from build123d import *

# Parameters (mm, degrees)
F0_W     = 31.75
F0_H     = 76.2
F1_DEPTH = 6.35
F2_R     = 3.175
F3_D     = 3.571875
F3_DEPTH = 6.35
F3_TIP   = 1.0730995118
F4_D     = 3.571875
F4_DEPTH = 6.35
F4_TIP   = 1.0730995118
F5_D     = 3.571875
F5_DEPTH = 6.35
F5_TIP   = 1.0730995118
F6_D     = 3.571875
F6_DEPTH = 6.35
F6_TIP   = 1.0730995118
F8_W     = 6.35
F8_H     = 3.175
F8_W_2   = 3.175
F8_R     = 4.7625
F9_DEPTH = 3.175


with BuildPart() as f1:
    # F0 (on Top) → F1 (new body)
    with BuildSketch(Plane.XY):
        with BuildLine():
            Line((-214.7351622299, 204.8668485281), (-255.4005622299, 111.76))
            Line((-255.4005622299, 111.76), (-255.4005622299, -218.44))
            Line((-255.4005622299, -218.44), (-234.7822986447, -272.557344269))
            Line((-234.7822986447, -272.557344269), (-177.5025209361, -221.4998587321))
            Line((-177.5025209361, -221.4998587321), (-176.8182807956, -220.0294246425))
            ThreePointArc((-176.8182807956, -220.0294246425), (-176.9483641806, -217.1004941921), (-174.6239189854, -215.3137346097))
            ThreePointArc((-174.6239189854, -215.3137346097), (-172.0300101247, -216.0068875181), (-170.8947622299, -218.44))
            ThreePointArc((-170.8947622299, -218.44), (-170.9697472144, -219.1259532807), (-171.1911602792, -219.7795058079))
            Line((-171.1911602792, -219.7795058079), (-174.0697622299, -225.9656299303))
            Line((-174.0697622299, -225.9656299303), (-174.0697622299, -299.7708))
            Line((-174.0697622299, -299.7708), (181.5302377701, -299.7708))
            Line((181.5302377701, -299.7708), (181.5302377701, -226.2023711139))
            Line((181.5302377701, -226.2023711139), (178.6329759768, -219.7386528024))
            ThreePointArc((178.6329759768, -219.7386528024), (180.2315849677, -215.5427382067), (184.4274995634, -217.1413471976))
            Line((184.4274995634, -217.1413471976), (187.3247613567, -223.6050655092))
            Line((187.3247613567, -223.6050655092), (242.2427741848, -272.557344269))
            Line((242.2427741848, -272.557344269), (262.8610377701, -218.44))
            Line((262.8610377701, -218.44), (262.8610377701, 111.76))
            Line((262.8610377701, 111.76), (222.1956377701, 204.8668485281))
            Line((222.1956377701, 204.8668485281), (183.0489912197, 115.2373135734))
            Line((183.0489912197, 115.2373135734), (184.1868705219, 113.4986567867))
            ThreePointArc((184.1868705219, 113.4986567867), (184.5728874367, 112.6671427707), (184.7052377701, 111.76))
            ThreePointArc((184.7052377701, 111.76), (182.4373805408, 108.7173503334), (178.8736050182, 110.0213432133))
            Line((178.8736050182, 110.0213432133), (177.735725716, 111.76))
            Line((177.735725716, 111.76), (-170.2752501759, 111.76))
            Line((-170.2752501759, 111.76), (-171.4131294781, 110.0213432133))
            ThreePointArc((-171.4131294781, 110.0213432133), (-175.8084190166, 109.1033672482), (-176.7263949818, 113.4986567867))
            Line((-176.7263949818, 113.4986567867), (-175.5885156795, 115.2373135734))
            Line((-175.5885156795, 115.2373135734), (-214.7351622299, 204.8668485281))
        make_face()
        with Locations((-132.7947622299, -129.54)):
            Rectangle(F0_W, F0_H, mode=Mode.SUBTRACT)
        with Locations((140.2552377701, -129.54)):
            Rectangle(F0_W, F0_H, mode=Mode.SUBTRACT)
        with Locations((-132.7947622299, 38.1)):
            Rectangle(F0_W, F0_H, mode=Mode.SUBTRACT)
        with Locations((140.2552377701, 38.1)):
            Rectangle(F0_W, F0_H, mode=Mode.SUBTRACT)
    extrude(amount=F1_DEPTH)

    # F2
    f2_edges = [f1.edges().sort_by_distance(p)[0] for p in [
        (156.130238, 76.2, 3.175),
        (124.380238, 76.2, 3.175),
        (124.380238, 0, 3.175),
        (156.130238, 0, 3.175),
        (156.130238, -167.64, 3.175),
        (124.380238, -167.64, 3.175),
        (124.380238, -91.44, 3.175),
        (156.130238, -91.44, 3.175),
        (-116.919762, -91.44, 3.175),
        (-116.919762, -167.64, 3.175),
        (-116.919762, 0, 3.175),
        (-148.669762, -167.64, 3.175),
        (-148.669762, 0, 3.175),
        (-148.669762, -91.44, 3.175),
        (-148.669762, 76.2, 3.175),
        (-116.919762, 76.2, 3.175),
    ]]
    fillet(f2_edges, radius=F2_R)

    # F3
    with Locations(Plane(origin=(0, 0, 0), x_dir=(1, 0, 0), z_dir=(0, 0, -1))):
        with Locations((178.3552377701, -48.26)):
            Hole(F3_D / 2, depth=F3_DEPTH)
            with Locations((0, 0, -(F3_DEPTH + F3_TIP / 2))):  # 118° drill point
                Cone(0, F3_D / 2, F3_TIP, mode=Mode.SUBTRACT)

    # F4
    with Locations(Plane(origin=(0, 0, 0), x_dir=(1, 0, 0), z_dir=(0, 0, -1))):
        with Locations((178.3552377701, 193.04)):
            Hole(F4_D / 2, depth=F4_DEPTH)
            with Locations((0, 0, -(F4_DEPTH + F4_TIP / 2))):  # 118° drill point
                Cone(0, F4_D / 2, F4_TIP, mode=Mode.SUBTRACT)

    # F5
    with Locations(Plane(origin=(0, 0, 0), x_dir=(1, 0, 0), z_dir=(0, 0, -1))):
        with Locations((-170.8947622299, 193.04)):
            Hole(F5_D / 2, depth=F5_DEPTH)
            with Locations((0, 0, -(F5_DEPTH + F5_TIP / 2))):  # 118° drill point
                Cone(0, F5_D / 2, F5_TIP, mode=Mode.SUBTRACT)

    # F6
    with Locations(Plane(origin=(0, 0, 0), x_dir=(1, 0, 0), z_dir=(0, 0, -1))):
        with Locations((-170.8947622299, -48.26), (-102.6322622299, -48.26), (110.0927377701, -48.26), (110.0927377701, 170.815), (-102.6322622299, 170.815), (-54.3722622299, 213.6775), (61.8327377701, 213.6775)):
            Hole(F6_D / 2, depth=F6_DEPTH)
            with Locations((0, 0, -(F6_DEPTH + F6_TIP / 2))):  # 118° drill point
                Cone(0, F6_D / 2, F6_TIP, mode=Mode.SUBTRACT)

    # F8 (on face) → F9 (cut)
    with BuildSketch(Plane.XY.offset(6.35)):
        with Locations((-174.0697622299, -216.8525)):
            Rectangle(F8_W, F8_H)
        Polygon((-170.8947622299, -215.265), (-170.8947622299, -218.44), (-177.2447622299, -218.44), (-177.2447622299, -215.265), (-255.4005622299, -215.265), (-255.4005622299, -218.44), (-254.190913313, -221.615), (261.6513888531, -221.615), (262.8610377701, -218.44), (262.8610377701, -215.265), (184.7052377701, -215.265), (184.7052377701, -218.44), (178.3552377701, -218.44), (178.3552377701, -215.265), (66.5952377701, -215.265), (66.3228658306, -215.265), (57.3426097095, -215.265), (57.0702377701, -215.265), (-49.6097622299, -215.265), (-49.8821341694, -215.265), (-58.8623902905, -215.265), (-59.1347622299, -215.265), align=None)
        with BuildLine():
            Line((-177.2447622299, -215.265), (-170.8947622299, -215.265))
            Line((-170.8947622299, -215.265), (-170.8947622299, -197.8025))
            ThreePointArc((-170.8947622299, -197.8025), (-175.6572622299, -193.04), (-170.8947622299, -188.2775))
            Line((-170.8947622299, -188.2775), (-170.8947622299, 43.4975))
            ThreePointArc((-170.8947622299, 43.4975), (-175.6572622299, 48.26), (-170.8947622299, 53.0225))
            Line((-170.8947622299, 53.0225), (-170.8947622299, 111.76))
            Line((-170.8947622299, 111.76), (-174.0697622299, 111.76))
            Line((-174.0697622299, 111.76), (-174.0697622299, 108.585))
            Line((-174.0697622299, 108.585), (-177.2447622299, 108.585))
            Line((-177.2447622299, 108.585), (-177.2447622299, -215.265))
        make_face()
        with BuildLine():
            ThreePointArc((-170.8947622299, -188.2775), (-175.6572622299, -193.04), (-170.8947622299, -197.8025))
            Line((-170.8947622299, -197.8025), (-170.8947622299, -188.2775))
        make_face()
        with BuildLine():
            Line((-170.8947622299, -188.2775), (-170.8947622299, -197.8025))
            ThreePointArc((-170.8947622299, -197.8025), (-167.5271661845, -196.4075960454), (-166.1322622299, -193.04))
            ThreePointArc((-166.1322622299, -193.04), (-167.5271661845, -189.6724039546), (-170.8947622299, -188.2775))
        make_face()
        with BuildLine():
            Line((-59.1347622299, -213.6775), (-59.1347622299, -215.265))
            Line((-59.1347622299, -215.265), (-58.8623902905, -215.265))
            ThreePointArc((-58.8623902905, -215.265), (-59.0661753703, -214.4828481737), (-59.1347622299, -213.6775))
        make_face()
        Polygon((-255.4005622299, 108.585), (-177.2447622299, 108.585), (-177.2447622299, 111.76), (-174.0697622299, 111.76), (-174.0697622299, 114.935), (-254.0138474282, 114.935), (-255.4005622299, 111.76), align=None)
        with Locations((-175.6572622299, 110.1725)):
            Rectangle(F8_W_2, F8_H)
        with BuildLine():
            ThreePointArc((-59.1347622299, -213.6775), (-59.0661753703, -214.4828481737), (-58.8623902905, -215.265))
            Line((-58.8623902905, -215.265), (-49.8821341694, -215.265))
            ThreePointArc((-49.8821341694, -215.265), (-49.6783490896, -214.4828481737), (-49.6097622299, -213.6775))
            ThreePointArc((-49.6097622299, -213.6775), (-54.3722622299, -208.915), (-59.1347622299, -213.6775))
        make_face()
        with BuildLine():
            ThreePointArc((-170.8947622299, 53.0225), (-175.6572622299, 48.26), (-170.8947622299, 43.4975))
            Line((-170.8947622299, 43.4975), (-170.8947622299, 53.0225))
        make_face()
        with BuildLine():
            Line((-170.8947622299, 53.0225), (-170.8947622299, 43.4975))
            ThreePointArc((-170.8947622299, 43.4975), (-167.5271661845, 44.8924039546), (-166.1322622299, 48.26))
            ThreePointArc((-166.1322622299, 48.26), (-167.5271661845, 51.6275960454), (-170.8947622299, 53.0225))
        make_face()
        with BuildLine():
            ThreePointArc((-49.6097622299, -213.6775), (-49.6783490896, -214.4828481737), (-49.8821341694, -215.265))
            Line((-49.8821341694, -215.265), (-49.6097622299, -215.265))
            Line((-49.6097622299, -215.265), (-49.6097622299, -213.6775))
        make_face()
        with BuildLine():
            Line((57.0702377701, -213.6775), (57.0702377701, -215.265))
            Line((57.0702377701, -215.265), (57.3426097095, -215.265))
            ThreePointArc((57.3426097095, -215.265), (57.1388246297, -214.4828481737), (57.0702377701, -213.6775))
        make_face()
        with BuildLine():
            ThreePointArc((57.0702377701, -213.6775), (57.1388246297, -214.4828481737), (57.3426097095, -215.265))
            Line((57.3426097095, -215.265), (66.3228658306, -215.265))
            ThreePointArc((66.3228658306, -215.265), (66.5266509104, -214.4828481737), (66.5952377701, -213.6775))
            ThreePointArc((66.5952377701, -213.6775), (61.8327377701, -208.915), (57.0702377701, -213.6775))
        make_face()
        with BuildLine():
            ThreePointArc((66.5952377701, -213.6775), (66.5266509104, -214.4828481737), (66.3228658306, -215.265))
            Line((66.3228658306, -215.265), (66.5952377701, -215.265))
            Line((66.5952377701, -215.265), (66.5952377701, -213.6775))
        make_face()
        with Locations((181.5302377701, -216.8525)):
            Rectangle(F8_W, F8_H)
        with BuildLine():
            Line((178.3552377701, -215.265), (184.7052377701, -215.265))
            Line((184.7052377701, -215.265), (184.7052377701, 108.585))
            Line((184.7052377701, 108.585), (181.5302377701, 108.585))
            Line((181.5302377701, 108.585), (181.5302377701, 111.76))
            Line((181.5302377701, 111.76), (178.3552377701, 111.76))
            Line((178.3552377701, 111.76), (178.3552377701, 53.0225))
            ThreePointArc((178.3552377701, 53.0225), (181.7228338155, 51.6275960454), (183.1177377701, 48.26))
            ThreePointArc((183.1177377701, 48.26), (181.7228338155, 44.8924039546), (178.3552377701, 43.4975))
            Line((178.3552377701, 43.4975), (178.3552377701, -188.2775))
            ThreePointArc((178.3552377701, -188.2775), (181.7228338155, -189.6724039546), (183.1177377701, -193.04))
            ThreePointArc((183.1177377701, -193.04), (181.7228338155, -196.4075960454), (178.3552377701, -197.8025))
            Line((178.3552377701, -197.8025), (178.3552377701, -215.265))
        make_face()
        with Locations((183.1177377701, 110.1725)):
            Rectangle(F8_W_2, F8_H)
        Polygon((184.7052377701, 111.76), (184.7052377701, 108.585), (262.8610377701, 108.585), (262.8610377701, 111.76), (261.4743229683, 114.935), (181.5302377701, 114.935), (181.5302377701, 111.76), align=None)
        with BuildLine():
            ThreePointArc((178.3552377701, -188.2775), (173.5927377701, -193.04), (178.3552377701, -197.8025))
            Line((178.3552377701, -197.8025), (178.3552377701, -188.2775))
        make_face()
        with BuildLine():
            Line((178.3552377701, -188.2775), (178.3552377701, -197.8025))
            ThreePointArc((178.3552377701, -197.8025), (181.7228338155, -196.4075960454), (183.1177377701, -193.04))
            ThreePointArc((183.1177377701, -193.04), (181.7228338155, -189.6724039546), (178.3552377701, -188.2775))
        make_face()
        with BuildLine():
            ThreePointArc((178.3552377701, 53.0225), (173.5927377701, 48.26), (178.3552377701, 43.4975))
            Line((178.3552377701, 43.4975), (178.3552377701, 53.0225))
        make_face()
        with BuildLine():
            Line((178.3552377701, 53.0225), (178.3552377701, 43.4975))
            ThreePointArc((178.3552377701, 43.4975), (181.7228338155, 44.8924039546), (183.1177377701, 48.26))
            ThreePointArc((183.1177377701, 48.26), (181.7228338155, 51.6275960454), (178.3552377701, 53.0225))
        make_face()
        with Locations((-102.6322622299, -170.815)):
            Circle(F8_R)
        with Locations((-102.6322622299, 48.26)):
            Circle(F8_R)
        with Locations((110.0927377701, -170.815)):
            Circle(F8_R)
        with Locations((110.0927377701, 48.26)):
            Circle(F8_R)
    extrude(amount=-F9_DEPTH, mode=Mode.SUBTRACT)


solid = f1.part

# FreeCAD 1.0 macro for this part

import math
import FreeCAD as App
import Part
import Sketcher

V = App.Vector
Q = App.Units.Quantity


def edges_at(feature, points):
    """Names of the edges that pass closest to the given points."""
    edges = feature.Shape.Edges
    near = lambda p: min(range(len(edges)), key=lambda i: edges[i].distToShape(Part.Vertex(*p))[0])
    return sorted({f"Edge{near(p) + 1}" for p in points})

doc = App.newDocument("Part")
params = doc.addObject("Spreadsheet::Sheet", "Params")
for row, (alias, value) in enumerate([
    ("sketch1_width", "14 in"),
    ("sketch1_height", "13 in"),
    ("sketch1_height2", "3 in"),
    ("sketch1_length", "4 in"),
    ("sketch1_radius", "0.125 in"),
    ("pad1_length", "0.25 in"),
    ("fillet_radius", "0.125 in"),
    ("sketch2_diameter", "0.140625 in"),
    ("hole_diameter", "0.140625 in"),
    ("hole_depth", "0.25 in"),
    ("sketch3_diameter", "0.140625 in"),
    ("hole2_diameter", "0.140625 in"),
    ("hole2_depth", "0.25 in"),
    ("sketch4_diameter", "0.140625 in"),
    ("hole3_diameter", "0.140625 in"),
    ("hole3_depth", "0.25 in"),
    ("sketch5_diameter", "0.140625 in"),
    ("hole4_diameter", "0.140625 in"),
    ("hole4_depth", "0.25 in"),
    ("sketch6_diameter", "0.375 in"),
    ("sketch6_width", "4.4 in"),
    ("sketch6_width2", "4.2 in"),
    ("sketch6_height", "12.75 in"),
    ("sketch6_width3", "3.077 in"),
    ("pocket1_length", "0.125 in"),
], start=1):
    params.set(f"A{row}", alias)
    params.set(f"B{row}", "=" + value)
    params.setAlias(f"B{row}", alias)

body = doc.addObject("PartDesign::Body", "Body")

sketch1 = doc.addObject("Sketcher::SketchObject", "Sketch")
body.addObject(sketch1)
sketch1.AttachmentSupport = (doc.XY_Plane, [""])
sketch1.MapMode = "FlatFace"
sketch1.addGeometry(Part.LineSegment(V(-214.735162, 204.866849, 0), V(-255.400562, 111.76, 0)), False)
sketch1.addGeometry(Part.LineSegment(V(-255.400562, 111.76, 0), V(-255.400562, -218.44, 0)), False)
sketch1.addGeometry(Part.LineSegment(V(-255.400562, -218.44, 0), V(-234.782299, -272.557344, 0)), False)
sketch1.addGeometry(Part.LineSegment(V(-234.782299, -272.557344, 0), V(-177.502521, -221.499859, 0)), False)
sketch1.addGeometry(Part.LineSegment(V(-177.502521, -221.499859, 0), V(-176.818281, -220.029425, 0)), False)
sketch1.addGeometry(Part.ArcOfCircle(Part.Circle(V(-174.069762, -218.44, 0), V(0, 0, 1), 3.175), math.radians(100.051748), math.radians(210.040113)), False)
sketch1.addGeometry(Part.ArcOfCircle(Part.Circle(V(-174.069762, -218.44, 0), V(0, 0, 1), 3.175), math.radians(0), math.radians(100.051748)), False)
sketch1.addGeometry(Part.ArcOfCircle(Part.Circle(V(-174.069762, -218.44, 0), V(0, 0, 1), 3.175), math.radians(-24.954069), math.radians(0)), False)
sketch1.addGeometry(Part.LineSegment(V(-171.19116, -219.779506, 0), V(-174.069762, -225.96563, 0)), False)
sketch1.addGeometry(Part.LineSegment(V(-174.069762, -225.96563, 0), V(-174.069762, -299.7708, 0)), False)
sketch1.addGeometry(Part.LineSegment(V(-174.069762, -299.7708, 0), V(181.530238, -299.7708, 0)), False)
sketch1.addGeometry(Part.LineSegment(V(181.530238, -299.7708, 0), V(181.530238, -226.202371, 0)), False)
sketch1.addGeometry(Part.LineSegment(V(181.530238, -226.202371, 0), V(178.632976, -219.738653, 0)), False)
sketch1.addGeometry(Part.ArcOfCircle(Part.Circle(V(181.530238, -218.44, 0), V(0, 0, 1), 3.175), math.radians(24.14357), math.radians(204.14357)), False)
sketch1.addGeometry(Part.LineSegment(V(184.4275, -217.141347, 0), V(187.324761, -223.605066, 0)), False)
sketch1.addGeometry(Part.LineSegment(V(187.324761, -223.605066, 0), V(242.242774, -272.557344, 0)), False)
sketch1.addGeometry(Part.LineSegment(V(242.242774, -272.557344, 0), V(262.861038, -218.44, 0)), False)
sketch1.addGeometry(Part.LineSegment(V(262.861038, -218.44, 0), V(262.861038, 111.76, 0)), False)
sketch1.addGeometry(Part.LineSegment(V(262.861038, 111.76, 0), V(222.195638, 204.866849, 0)), False)
sketch1.addGeometry(Part.LineSegment(V(222.195638, 204.866849, 0), V(183.048991, 115.237314, 0)), False)
sketch1.addGeometry(Part.LineSegment(V(183.048991, 115.237314, 0), V(184.186871, 113.498657, 0)), False)
sketch1.addGeometry(Part.ArcOfCircle(Part.Circle(V(181.530238, 111.76, 0), V(0, 0, 1), 3.175), math.radians(0), math.radians(33.203096)), False)
sketch1.addGeometry(Part.ArcOfCircle(Part.Circle(V(181.530238, 111.76, 0), V(0, 0, 1), 3.175), math.radians(-146.796904), math.radians(0)), False)
sketch1.addGeometry(Part.LineSegment(V(178.873605, 110.021343, 0), V(177.735726, 111.76, 0)), False)
sketch1.addGeometry(Part.LineSegment(V(177.735726, 111.76, 0), V(-170.27525, 111.76, 0)), False)
sketch1.addGeometry(Part.LineSegment(V(-170.27525, 111.76, 0), V(-171.413129, 110.021343, 0)), False)
sketch1.addGeometry(Part.ArcOfCircle(Part.Circle(V(-174.069762, 111.76, 0), V(0, 0, 1), 3.175), math.radians(146.796904), math.radians(326.796904)), False)
sketch1.addGeometry(Part.LineSegment(V(-176.726395, 113.498657, 0), V(-175.588516, 115.237314, 0)), False)
sketch1.addGeometry(Part.LineSegment(V(-175.588516, 115.237314, 0), V(-214.735162, 204.866849, 0)), False)
sketch1.addGeometry(Part.LineSegment(V(-116.919762, -167.64, 0), V(-148.669762, -167.64, 0)), False)
sketch1.addGeometry(Part.LineSegment(V(-148.669762, -167.64, 0), V(-148.669762, -91.44, 0)), False)
sketch1.addGeometry(Part.LineSegment(V(-148.669762, -91.44, 0), V(-116.919762, -91.44, 0)), False)
sketch1.addGeometry(Part.LineSegment(V(-116.919762, -91.44, 0), V(-116.919762, -167.64, 0)), False)
sketch1.addGeometry(Part.LineSegment(V(156.130238, -167.64, 0), V(124.380238, -167.64, 0)), False)
sketch1.addGeometry(Part.LineSegment(V(124.380238, -167.64, 0), V(124.380238, -91.44, 0)), False)
sketch1.addGeometry(Part.LineSegment(V(124.380238, -91.44, 0), V(156.130238, -91.44, 0)), False)
sketch1.addGeometry(Part.LineSegment(V(156.130238, -91.44, 0), V(156.130238, -167.64, 0)), False)
sketch1.addGeometry(Part.LineSegment(V(-116.919762, 0, 0), V(-148.669762, 0, 0)), False)
sketch1.addGeometry(Part.LineSegment(V(-148.669762, 0, 0), V(-148.669762, 76.2, 0)), False)
sketch1.addGeometry(Part.LineSegment(V(-148.669762, 76.2, 0), V(-116.919762, 76.2, 0)), False)
sketch1.addGeometry(Part.LineSegment(V(-116.919762, 76.2, 0), V(-116.919762, 0, 0)), False)
sketch1.addGeometry(Part.LineSegment(V(156.130238, 0, 0), V(124.380238, 0, 0)), False)
sketch1.addGeometry(Part.LineSegment(V(124.380238, 0, 0), V(124.380238, 76.2, 0)), False)
sketch1.addGeometry(Part.LineSegment(V(124.380238, 76.2, 0), V(156.130238, 76.2, 0)), False)
sketch1.addGeometry(Part.LineSegment(V(156.130238, 76.2, 0), V(156.130238, 0, 0)), False)
sketch1.addConstraint(Sketcher.Constraint("Coincident", 0, 2, 1, 1))
sketch1.addConstraint(Sketcher.Constraint("Coincident", 1, 2, 2, 1))
sketch1.addConstraint(Sketcher.Constraint("Coincident", 2, 2, 3, 1))
sketch1.addConstraint(Sketcher.Constraint("Coincident", 3, 2, 4, 1))
sketch1.addConstraint(Sketcher.Constraint("Coincident", 4, 2, 5, 2))
sketch1.addConstraint(Sketcher.Constraint("Tangent", 5, 1, 6, 2))
sketch1.addConstraint(Sketcher.Constraint("Tangent", 6, 1, 7, 2))
sketch1.addConstraint(Sketcher.Constraint("Tangent", 7, 1, 8, 1))
sketch1.addConstraint(Sketcher.Constraint("Coincident", 8, 2, 9, 1))
sketch1.addConstraint(Sketcher.Constraint("Coincident", 9, 2, 10, 1))
sketch1.addConstraint(Sketcher.Constraint("Coincident", 10, 2, 11, 1))
sketch1.addConstraint(Sketcher.Constraint("Coincident", 11, 2, 12, 1))
sketch1.addConstraint(Sketcher.Constraint("Tangent", 12, 2, 13, 2))
sketch1.addConstraint(Sketcher.Constraint("Tangent", 13, 1, 14, 1))
sketch1.addConstraint(Sketcher.Constraint("Coincident", 14, 2, 15, 1))
sketch1.addConstraint(Sketcher.Constraint("Coincident", 15, 2, 16, 1))
sketch1.addConstraint(Sketcher.Constraint("Coincident", 16, 2, 17, 1))
sketch1.addConstraint(Sketcher.Constraint("Coincident", 17, 2, 18, 1))
sketch1.addConstraint(Sketcher.Constraint("Coincident", 18, 2, 19, 1))
sketch1.addConstraint(Sketcher.Constraint("Coincident", 19, 2, 20, 1))
sketch1.addConstraint(Sketcher.Constraint("Tangent", 20, 2, 21, 2))
sketch1.addConstraint(Sketcher.Constraint("Tangent", 21, 1, 22, 2))
sketch1.addConstraint(Sketcher.Constraint("Tangent", 22, 1, 23, 1))
sketch1.addConstraint(Sketcher.Constraint("Coincident", 23, 2, 24, 1))
sketch1.addConstraint(Sketcher.Constraint("Coincident", 24, 2, 25, 1))
sketch1.addConstraint(Sketcher.Constraint("Tangent", 25, 2, 26, 2))
sketch1.addConstraint(Sketcher.Constraint("Tangent", 26, 1, 27, 1))
sketch1.addConstraint(Sketcher.Constraint("Coincident", 27, 2, 28, 1))
sketch1.addConstraint(Sketcher.Constraint("Coincident", 28, 2, 0, 1))
sketch1.addConstraint(Sketcher.Constraint("Coincident", 29, 2, 30, 1))
sketch1.addConstraint(Sketcher.Constraint("Coincident", 30, 2, 31, 1))
sketch1.addConstraint(Sketcher.Constraint("Coincident", 31, 2, 32, 1))
sketch1.addConstraint(Sketcher.Constraint("Coincident", 32, 2, 29, 1))
sketch1.addConstraint(Sketcher.Constraint("Coincident", 33, 2, 34, 1))
sketch1.addConstraint(Sketcher.Constraint("Coincident", 34, 2, 35, 1))
sketch1.addConstraint(Sketcher.Constraint("Coincident", 35, 2, 36, 1))
sketch1.addConstraint(Sketcher.Constraint("Coincident", 36, 2, 33, 1))
sketch1.addConstraint(Sketcher.Constraint("Coincident", 37, 2, 38, 1))
sketch1.addConstraint(Sketcher.Constraint("Coincident", 38, 2, 39, 1))
sketch1.addConstraint(Sketcher.Constraint("Coincident", 39, 2, 40, 1))
sketch1.addConstraint(Sketcher.Constraint("Coincident", 40, 2, 37, 1))
sketch1.addConstraint(Sketcher.Constraint("Coincident", 41, 2, 42, 1))
sketch1.addConstraint(Sketcher.Constraint("Coincident", 42, 2, 43, 1))
sketch1.addConstraint(Sketcher.Constraint("Coincident", 43, 2, 44, 1))
sketch1.addConstraint(Sketcher.Constraint("Coincident", 44, 2, 41, 1))
sketch1.addConstraint(Sketcher.Constraint("Vertical", 1))
sketch1.addConstraint(Sketcher.Constraint("Vertical", 9))
sketch1.addConstraint(Sketcher.Constraint("Horizontal", 10))
sketch1.addConstraint(Sketcher.Constraint("Vertical", 11))
sketch1.addConstraint(Sketcher.Constraint("Vertical", 17))
sketch1.addConstraint(Sketcher.Constraint("Horizontal", 24))
sketch1.addConstraint(Sketcher.Constraint("Horizontal", 29))
sketch1.addConstraint(Sketcher.Constraint("Vertical", 30))
sketch1.addConstraint(Sketcher.Constraint("Horizontal", 31))
sketch1.addConstraint(Sketcher.Constraint("Vertical", 32))
sketch1.addConstraint(Sketcher.Constraint("Horizontal", 33))
sketch1.addConstraint(Sketcher.Constraint("Vertical", 34))
sketch1.addConstraint(Sketcher.Constraint("Horizontal", 35))
sketch1.addConstraint(Sketcher.Constraint("Vertical", 36))
sketch1.addConstraint(Sketcher.Constraint("Horizontal", 37))
sketch1.addConstraint(Sketcher.Constraint("Vertical", 38))
sketch1.addConstraint(Sketcher.Constraint("Horizontal", 39))
sketch1.addConstraint(Sketcher.Constraint("Vertical", 40))
sketch1.addConstraint(Sketcher.Constraint("Horizontal", 41))
sketch1.addConstraint(Sketcher.Constraint("Vertical", 42))
sketch1.addConstraint(Sketcher.Constraint("Horizontal", 43))
sketch1.addConstraint(Sketcher.Constraint("Vertical", 44))
sketch1.addConstraint(Sketcher.Constraint("Coincident", 7, 3, 5, 3))
sketch1.addConstraint(Sketcher.Constraint("Equal", 7, 13))
sketch1.addConstraint(Sketcher.Constraint("Equal", 13, 21))
sketch1.addConstraint(Sketcher.Constraint("Equal", 21, 22))
sketch1.addConstraint(Sketcher.Constraint("Equal", 22, 26))
sketch1.addConstraint(Sketcher.Constraint("PointOnObject", 37, 2, -1))
sketch1.addConstraint(Sketcher.Constraint("PointOnObject", 41, 2, -1))
sketch1.addConstraint(Sketcher.Constraint("Parallel", 4, 8))
sketch1.addConstraint(Sketcher.Constraint("Parallel", 12, 14))
sketch1.addConstraint(Sketcher.Constraint("Parallel", 0, 19))
sketch1.addConstraint(Sketcher.Constraint("Parallel", 20, 23))
sketch1.addConstraint(Sketcher.Constraint("Parallel", 25, 27))
sketch1.addConstraint(Sketcher.Constraint("Parallel", 18, 28))
sketch1.addConstraint(Sketcher.Constraint("Horizontal", 7, 3, 13, 3))
sketch1.addConstraint(Sketcher.Constraint("Horizontal", 22, 3, 26, 3))
sketch1.addConstraint(Sketcher.Constraint("Horizontal", 26, 3, 0, 2))
sketch1.addConstraint(Sketcher.Constraint("Horizontal", 13, 3, 1, 2))
sketch1.addConstraint(Sketcher.Constraint("Horizontal", 1, 2, 6, 1))
sketch1.addConstraint(Sketcher.Constraint("Horizontal", 2, 2, 15, 2))
sketch1.addConstraint(Sketcher.Constraint("Horizontal", 6, 1, 16, 2))
sketch1.addConstraint(Sketcher.Constraint("Horizontal", 0, 2, 17, 2))
sketch1.addConstraint(Sketcher.Constraint("Horizontal", 17, 2, 21, 1))
sketch1.addConstraint(Sketcher.Constraint("Horizontal", 21, 1, 23, 2))
sketch1.addConstraint(Sketcher.Constraint("Horizontal", 22, 1, 25, 2))
sketch1.addConstraint(Sketcher.Constraint("Horizontal", 19, 2, 27, 2))
sketch1.addConstraint(Sketcher.Constraint("Horizontal", 18, 2, 28, 2))
sketch1.addConstraint(Sketcher.Constraint("Horizontal", 32, 2, 33, 2))
sketch1.addConstraint(Sketcher.Constraint("Horizontal", 31, 2, 34, 2))
sketch1.addConstraint(Sketcher.Constraint("Horizontal", 39, 2, 42, 2))
sketch1.addConstraint(Sketcher.Constraint("Vertical", 13, 3, 21, 3))
sketch1.addConstraint(Sketcher.Constraint("Vertical", 7, 3, 26, 3))
sketch1.addConstraint(Sketcher.Constraint("Vertical", 26, 3, 8, 2))
sketch1.addConstraint(Sketcher.Constraint("Vertical", 22, 3, 10, 2))
sketch1.addConstraint(Sketcher.Constraint("Vertical", 30, 2, 37, 2))
sketch1.addConstraint(Sketcher.Constraint("Vertical", 32, 2, 39, 2))
sketch1.addConstraint(Sketcher.Constraint("Vertical", 34, 2, 41, 2))
sketch1.addConstraint(Sketcher.Constraint("Vertical", 36, 2, 43, 2))
sketch1.addConstraint(Sketcher.Constraint("Equal", 31, 33))
sketch1.addConstraint(Sketcher.Constraint("Equal", 36, 38))
sketch1.addConstraint(Sketcher.Constraint("Equal", 12, 14))
sketch1.addConstraint(Sketcher.Constraint("Equal", 2, 16))
sketch1.addConstraint(Sketcher.Constraint("Equal", 0, 18))
sketch1.addConstraint(Sketcher.Constraint("Equal", 20, 23))
sketch1.addConstraint(Sketcher.Constraint("DistanceX", 10, 1, 10, 2, Q("14 in")))
sketch1.addConstraint(Sketcher.Constraint("DistanceY", 1, 2, 1, 1, Q("13 in")))
sketch1.addConstraint(Sketcher.Constraint("DistanceY", 30, 1, 30, 2, Q("3 in")))
sketch1.addConstraint(Sketcher.Constraint("Distance", 0, Q("4 in")))
sketch1.addConstraint(Sketcher.Constraint("Radius", 5, Q("0.125 in")))
sketch1.addConstraint(Sketcher.Constraint("DistanceY", 6, 1, 29, 2, Q("2 in")))
sketch1.addConstraint(Sketcher.Constraint("DistanceX", 5, 3, 29, 2, Q("1 in")))
sketch1.addConstraint(Sketcher.Constraint("DistanceX", 35, 2, 13, 3, Q("1 in")))
sketch1.addConstraint(Sketcher.Constraint("DistanceX", 29, 2, 29, 1, Q("1.25 in")))
sketch1.addConstraint(Sketcher.Constraint("DistanceY", 5, 3, -1, 1, Q("8.6 in")))
sketch1.addConstraint(Sketcher.Constraint("Distance", 2, Q("2.28 in")))
sketch1.addConstraint(Sketcher.Constraint("DistanceY", 9, 2, -1, 1, Q("11.802 in")))
sketch1.addConstraint(Sketcher.Constraint("DistanceX", 0, 2, 26, 3, Q("3.202 in")))
sketch1.addConstraint(Sketcher.Constraint("DistanceX", 21, 3, 18, 2, Q("1.601 in")))
sketch1.addConstraint(Sketcher.Constraint("DistanceY", 9, 2, 9, 1, Q("73.80517 mm")))
sketch1.addConstraint(Sketcher.Constraint("DistanceY", 11, 1, 11, 2, Q("73.568429 mm")))
sketch1.addConstraint(Sketcher.Constraint("DistanceX", 2, 2, -1, 1, Q("234.782299 mm")))
sketch1.addConstraint(Sketcher.Constraint("DistanceX", -1, 1, 13, 1, Q("184.4275 mm")))
sketch1.addConstraint(Sketcher.Constraint("DistanceX", 3, 2, 5, 1, Q("2.878602 mm")))
sketch1.addConstraint(Sketcher.Constraint("Distance", 3, Q("76.73226 mm")))
sketch1.addConstraint(Sketcher.Constraint("Distance", 4, Q("1.621839 mm")))
sketch1.setExpression("Constraints[110]", "Params.sketch1_width")
sketch1.setExpression("Constraints[111]", "Params.sketch1_height")
sketch1.setExpression("Constraints[112]", "Params.sketch1_height2")
sketch1.setExpression("Constraints[113]", "Params.sketch1_length")
sketch1.setExpression("Constraints[114]", "Params.sketch1_radius")
pad1 = doc.addObject("PartDesign::Pad", "Pad")
body.addObject(pad1)
pad1.Profile = sketch1
pad1.setExpression("Length", "Params.pad1_length")
doc.recompute()

fillet = doc.addObject("PartDesign::Fillet", "Fillet")
body.addObject(fillet)
fillet.Base = (pad1, edges_at(pad1, [
    (156.13, 76.2, 3.175),
    (124.38, 76.2, 3.175),
    (124.38, 0, 3.175),
    (156.13, 0, 3.175),
    (156.13, -167.64, 3.175),
    (124.38, -167.64, 3.175),
    (124.38, -91.44, 3.175),
    (156.13, -91.44, 3.175),
    (-116.92, -91.44, 3.175),
    (-116.92, -167.64, 3.175),
    (-116.92, 0, 3.175),
    (-148.67, -167.64, 3.175),
    (-148.67, 0, 3.175),
    (-148.67, -91.44, 3.175),
    (-148.67, 76.2, 3.175),
    (-116.92, 76.2, 3.175),
]))
fillet.setExpression("Radius", "Params.fillet_radius")

sketch2 = doc.addObject("Sketcher::SketchObject", "Sketch001")
body.addObject(sketch2)
sketch2.AttachmentSupport = (doc.XY_Plane, [""])
sketch2.MapMode = "FlatFace"
sketch2.addGeometry(Part.Circle(V(178.355238, 48.26, 0), V(0, 0, 1), 1.785937), False)
sketch2.addConstraint(Sketcher.Constraint("Diameter", 0, Q("0.140625 in")))
sketch2.addConstraint(Sketcher.Constraint("DistanceY", -1, 1, 0, 3, Q("1.9 in")))
sketch2.addConstraint(Sketcher.Constraint("DistanceX", -1, 1, 0, 3, Q("178.355238 mm")))
sketch2.setExpression("Constraints[0]", "Params.sketch2_diameter")
doc.recompute()
hole = doc.addObject("PartDesign::Hole", "Hole")
body.addObject(hole)
hole.Profile = sketch2
hole.ThreadType = "None"
hole.setExpression("Diameter", "Params.hole_diameter")
hole.DepthType = "Dimension"
hole.setExpression("Depth", "Params.hole_depth")
hole.DrillPoint = "Angled"
hole.DrillPointAngle = 118
hole.Reversed = True

sketch3 = doc.addObject("Sketcher::SketchObject", "Sketch002")
body.addObject(sketch3)
sketch3.AttachmentSupport = (doc.XY_Plane, [""])
sketch3.MapMode = "FlatFace"
sketch3.addGeometry(Part.Circle(V(178.355238, -193.04, 0), V(0, 0, 1), 1.785937), False)
sketch3.addConstraint(Sketcher.Constraint("Diameter", 0, Q("0.140625 in")))
sketch3.addConstraint(Sketcher.Constraint("DistanceY", 0, 3, -1, 1, Q("7.6 in")))
sketch3.addConstraint(Sketcher.Constraint("DistanceX", -1, 1, 0, 3, Q("178.355238 mm")))
sketch3.setExpression("Constraints[0]", "Params.sketch3_diameter")
doc.recompute()
hole2 = doc.addObject("PartDesign::Hole", "Hole001")
body.addObject(hole2)
hole2.Profile = sketch3
hole2.ThreadType = "None"
hole2.setExpression("Diameter", "Params.hole2_diameter")
hole2.DepthType = "Dimension"
hole2.setExpression("Depth", "Params.hole2_depth")
hole2.DrillPoint = "Angled"
hole2.DrillPointAngle = 118
hole2.Reversed = True

sketch4 = doc.addObject("Sketcher::SketchObject", "Sketch003")
body.addObject(sketch4)
sketch4.AttachmentSupport = (doc.XY_Plane, [""])
sketch4.MapMode = "FlatFace"
sketch4.addGeometry(Part.Circle(V(-170.894762, -193.04, 0), V(0, 0, 1), 1.785937), False)
sketch4.addConstraint(Sketcher.Constraint("Diameter", 0, Q("0.140625 in")))
sketch4.addConstraint(Sketcher.Constraint("DistanceY", 0, 3, -1, 1, Q("7.6 in")))
sketch4.addConstraint(Sketcher.Constraint("DistanceX", 0, 3, -1, 1, Q("170.894762 mm")))
sketch4.setExpression("Constraints[0]", "Params.sketch4_diameter")
doc.recompute()
hole3 = doc.addObject("PartDesign::Hole", "Hole002")
body.addObject(hole3)
hole3.Profile = sketch4
hole3.ThreadType = "None"
hole3.setExpression("Diameter", "Params.hole3_diameter")
hole3.DepthType = "Dimension"
hole3.setExpression("Depth", "Params.hole3_depth")
hole3.DrillPoint = "Angled"
hole3.DrillPointAngle = 118
hole3.Reversed = True

sketch5 = doc.addObject("Sketcher::SketchObject", "Sketch004")
body.addObject(sketch5)
sketch5.AttachmentSupport = (doc.XY_Plane, [""])
sketch5.MapMode = "FlatFace"
sketch5.addGeometry(Part.Circle(V(-170.894762, 48.26, 0), V(0, 0, 1), 1.785937), False)
sketch5.addGeometry(Part.Circle(V(-102.632262, 48.26, 0), V(0, 0, 1), 1.785937), False)
sketch5.addGeometry(Part.Circle(V(110.092738, 48.26, 0), V(0, 0, 1), 1.785937), False)
sketch5.addGeometry(Part.Circle(V(110.092738, -170.815, 0), V(0, 0, 1), 1.785937), False)
sketch5.addGeometry(Part.Circle(V(-102.632262, -170.815, 0), V(0, 0, 1), 1.785937), False)
sketch5.addGeometry(Part.Circle(V(-54.372262, -213.6775, 0), V(0, 0, 1), 1.785937), False)
sketch5.addGeometry(Part.Circle(V(61.832738, -213.6775, 0), V(0, 0, 1), 1.785937), False)
sketch5.addConstraint(Sketcher.Constraint("Equal", 0, 1))
sketch5.addConstraint(Sketcher.Constraint("Equal", 1, 2))
sketch5.addConstraint(Sketcher.Constraint("Equal", 2, 3))
sketch5.addConstraint(Sketcher.Constraint("Equal", 3, 4))
sketch5.addConstraint(Sketcher.Constraint("Equal", 4, 5))
sketch5.addConstraint(Sketcher.Constraint("Equal", 5, 6))
sketch5.addConstraint(Sketcher.Constraint("Horizontal", 0, 3, 1, 3))
sketch5.addConstraint(Sketcher.Constraint("Horizontal", 1, 3, 2, 3))
sketch5.addConstraint(Sketcher.Constraint("Horizontal", 3, 3, 4, 3))
sketch5.addConstraint(Sketcher.Constraint("Horizontal", 5, 3, 6, 3))
sketch5.addConstraint(Sketcher.Constraint("Vertical", 2, 3, 3, 3))
sketch5.addConstraint(Sketcher.Constraint("Vertical", 1, 3, 4, 3))
sketch5.addConstraint(Sketcher.Constraint("Diameter", 0, Q("0.140625 in")))
sketch5.addConstraint(Sketcher.Constraint("DistanceY", -1, 1, 0, 3, Q("1.9 in")))
sketch5.addConstraint(Sketcher.Constraint("DistanceX", 4, 3, 5, 3, Q("1.9 in")))
sketch5.addConstraint(Sketcher.Constraint("DistanceX", 6, 3, 3, 3, Q("1.9 in")))
sketch5.addConstraint(Sketcher.Constraint("DistanceY", 3, 3, -1, 1, Q("6.725 in")))
sketch5.addConstraint(Sketcher.Constraint("DistanceX", 0, 3, 1, 3, Q("2.6875 in")))
sketch5.addConstraint(Sketcher.Constraint("DistanceX", 1, 3, 2, 3, Q("8.375 in")))
sketch5.addConstraint(Sketcher.Constraint("DistanceY", 5, 3, 4, 3, Q("1.6875 in")))
sketch5.addConstraint(Sketcher.Constraint("DistanceX", 0, 3, -1, 1, Q("170.894762 mm")))
sketch5.setExpression("Constraints[12]", "Params.sketch5_diameter")
doc.recompute()
hole4 = doc.addObject("PartDesign::Hole", "Hole003")
body.addObject(hole4)
hole4.Profile = sketch5
hole4.ThreadType = "None"
hole4.setExpression("Diameter", "Params.hole4_diameter")
hole4.DepthType = "Dimension"
hole4.setExpression("Depth", "Params.hole4_depth")
hole4.DrillPoint = "Angled"
hole4.DrillPointAngle = 118
hole4.Reversed = True

sketch6 = doc.addObject("Sketcher::SketchObject", "Sketch005")
body.addObject(sketch6)
sketch6.AttachmentSupport = (doc.XY_Plane, [""])
sketch6.MapMode = "FlatFace"
sketch6.AttachmentOffset = App.Placement(V(0, 0, 0.25 * 25.4), App.Rotation())
sketch6.addGeometry(Part.LineSegment(V(-255.400562, -215.265, 0), V(-255.400562, -218.44, 0)), False)
sketch6.addGeometry(Part.LineSegment(V(-255.400562, -218.44, 0), V(-254.190913, -221.615, 0)), False)
sketch6.addGeometry(Part.LineSegment(V(-254.190913, -221.615, 0), V(261.651389, -221.615, 0)), False)
sketch6.addGeometry(Part.LineSegment(V(261.651389, -221.615, 0), V(262.861038, -218.44, 0)), False)
sketch6.addGeometry(Part.LineSegment(V(262.861038, -218.44, 0), V(262.861038, -215.265, 0)), False)
sketch6.addGeometry(Part.LineSegment(V(262.861038, -215.265, 0), V(184.705238, -215.265, 0)), False)
sketch6.addGeometry(Part.LineSegment(V(184.705238, -215.265, 0), V(184.705238, 108.585, 0)), False)
sketch6.addGeometry(Part.LineSegment(V(184.705238, 108.585, 0), V(262.861038, 108.585, 0)), False)
sketch6.addGeometry(Part.LineSegment(V(262.861038, 108.585, 0), V(262.861038, 111.76, 0)), False)
sketch6.addGeometry(Part.LineSegment(V(262.861038, 111.76, 0), V(261.474323, 114.935, 0)), False)
sketch6.addGeometry(Part.LineSegment(V(261.474323, 114.935, 0), V(181.530238, 114.935, 0)), False)
sketch6.addGeometry(Part.LineSegment(V(181.530238, 114.935, 0), V(181.530238, 111.76, 0)), False)
sketch6.addGeometry(Part.LineSegment(V(181.530238, 111.76, 0), V(178.355238, 111.76, 0)), False)
sketch6.addGeometry(Part.LineSegment(V(178.355238, 111.76, 0), V(178.355238, 53.0225, 0)), False)
sketch6.addGeometry(Part.ArcOfCircle(Part.Circle(V(178.355238, 48.26, 0), V(0, 0, 1), 4.7625), math.radians(90), math.radians(270)), False)
sketch6.addGeometry(Part.LineSegment(V(178.355238, 43.4975, 0), V(178.355238, -188.2775, 0)), False)
sketch6.addGeometry(Part.ArcOfCircle(Part.Circle(V(178.355238, -193.04, 0), V(0, 0, 1), 4.7625), math.radians(90), math.radians(270)), False)
sketch6.addGeometry(Part.LineSegment(V(178.355238, -197.8025, 0), V(178.355238, -215.265, 0)), False)
sketch6.addGeometry(Part.LineSegment(V(178.355238, -215.265, 0), V(66.595238, -215.265, 0)), False)
sketch6.addGeometry(Part.LineSegment(V(66.595238, -215.265, 0), V(66.595238, -213.6775, 0)), False)
sketch6.addGeometry(Part.ArcOfCircle(Part.Circle(V(61.832738, -213.6775, 0), V(0, 0, 1), 4.7625), math.radians(0), math.radians(180)), False)
sketch6.addGeometry(Part.LineSegment(V(57.070238, -213.6775, 0), V(57.070238, -215.265, 0)), False)
sketch6.addGeometry(Part.LineSegment(V(57.070238, -215.265, 0), V(-49.609762, -215.265, 0)), False)
sketch6.addGeometry(Part.LineSegment(V(-49.609762, -215.265, 0), V(-49.609762, -213.6775, 0)), False)
sketch6.addGeometry(Part.ArcOfCircle(Part.Circle(V(-54.372262, -213.6775, 0), V(0, 0, 1), 4.7625), math.radians(0), math.radians(180)), False)
sketch6.addGeometry(Part.LineSegment(V(-59.134762, -213.6775, 0), V(-59.134762, -215.265, 0)), False)
sketch6.addGeometry(Part.LineSegment(V(-59.134762, -215.265, 0), V(-170.894762, -215.265, 0)), False)
sketch6.addGeometry(Part.LineSegment(V(-170.894762, -215.265, 0), V(-170.894762, -197.8025, 0)), False)
sketch6.addGeometry(Part.ArcOfCircle(Part.Circle(V(-170.894762, -193.04, 0), V(0, 0, 1), 4.7625), math.radians(-90), math.radians(0)), False)
sketch6.addGeometry(Part.ArcOfCircle(Part.Circle(V(-170.894762, -193.04, 0), V(0, 0, 1), 4.7625), math.radians(0), math.radians(90)), False)
sketch6.addGeometry(Part.LineSegment(V(-170.894762, -188.2775, 0), V(-170.894762, 43.4975, 0)), False)
sketch6.addGeometry(Part.ArcOfCircle(Part.Circle(V(-170.894762, 48.26, 0), V(0, 0, 1), 4.7625), math.radians(-90), math.radians(0)), False)
sketch6.addGeometry(Part.ArcOfCircle(Part.Circle(V(-170.894762, 48.26, 0), V(0, 0, 1), 4.7625), math.radians(0), math.radians(90)), False)
sketch6.addGeometry(Part.LineSegment(V(-170.894762, 53.0225, 0), V(-170.894762, 111.76, 0)), False)
sketch6.addGeometry(Part.LineSegment(V(-170.894762, 111.76, 0), V(-174.069762, 111.76, 0)), False)
sketch6.addGeometry(Part.LineSegment(V(-174.069762, 111.76, 0), V(-174.069762, 114.935, 0)), False)
sketch6.addGeometry(Part.LineSegment(V(-174.069762, 114.935, 0), V(-254.013847, 114.935, 0)), False)
sketch6.addGeometry(Part.LineSegment(V(-254.013847, 114.935, 0), V(-255.400562, 111.76, 0)), False)
sketch6.addGeometry(Part.LineSegment(V(-255.400562, 111.76, 0), V(-255.400562, 108.585, 0)), False)
sketch6.addGeometry(Part.LineSegment(V(-255.400562, 108.585, 0), V(-177.244762, 108.585, 0)), False)
sketch6.addGeometry(Part.LineSegment(V(-177.244762, 108.585, 0), V(-177.244762, -215.265, 0)), False)
sketch6.addGeometry(Part.LineSegment(V(-177.244762, -215.265, 0), V(-255.400562, -215.265, 0)), False)
sketch6.addGeometry(Part.Circle(V(-102.632262, -170.815, 0), V(0, 0, 1), 4.7625), False)
sketch6.addGeometry(Part.Circle(V(-102.632262, 48.26, 0), V(0, 0, 1), 4.7625), False)
sketch6.addGeometry(Part.Circle(V(110.092738, -170.815, 0), V(0, 0, 1), 4.7625), False)
sketch6.addGeometry(Part.Circle(V(110.092738, 48.26, 0), V(0, 0, 1), 4.7625), False)
sketch6.addConstraint(Sketcher.Constraint("Coincident", 0, 2, 1, 1))
sketch6.addConstraint(Sketcher.Constraint("Coincident", 1, 2, 2, 1))
sketch6.addConstraint(Sketcher.Constraint("Coincident", 2, 2, 3, 1))
sketch6.addConstraint(Sketcher.Constraint("Coincident", 3, 2, 4, 1))
sketch6.addConstraint(Sketcher.Constraint("Coincident", 4, 2, 5, 1))
sketch6.addConstraint(Sketcher.Constraint("Coincident", 5, 2, 6, 1))
sketch6.addConstraint(Sketcher.Constraint("Coincident", 6, 2, 7, 1))
sketch6.addConstraint(Sketcher.Constraint("Coincident", 7, 2, 8, 1))
sketch6.addConstraint(Sketcher.Constraint("Coincident", 8, 2, 9, 1))
sketch6.addConstraint(Sketcher.Constraint("Coincident", 9, 2, 10, 1))
sketch6.addConstraint(Sketcher.Constraint("Coincident", 10, 2, 11, 1))
sketch6.addConstraint(Sketcher.Constraint("Coincident", 11, 2, 12, 1))
sketch6.addConstraint(Sketcher.Constraint("Coincident", 12, 2, 13, 1))
sketch6.addConstraint(Sketcher.Constraint("Coincident", 13, 2, 14, 1))
sketch6.addConstraint(Sketcher.Constraint("Coincident", 14, 2, 15, 1))
sketch6.addConstraint(Sketcher.Constraint("Coincident", 15, 2, 16, 1))
sketch6.addConstraint(Sketcher.Constraint("Coincident", 16, 2, 17, 1))
sketch6.addConstraint(Sketcher.Constraint("Coincident", 17, 2, 18, 1))
sketch6.addConstraint(Sketcher.Constraint("Coincident", 18, 2, 19, 1))
sketch6.addConstraint(Sketcher.Constraint("Tangent", 19, 2, 20, 1))
sketch6.addConstraint(Sketcher.Constraint("Tangent", 20, 2, 21, 1))
sketch6.addConstraint(Sketcher.Constraint("Coincident", 21, 2, 22, 1))
sketch6.addConstraint(Sketcher.Constraint("Coincident", 22, 2, 23, 1))
sketch6.addConstraint(Sketcher.Constraint("Tangent", 23, 2, 24, 1))
sketch6.addConstraint(Sketcher.Constraint("Tangent", 24, 2, 25, 1))
sketch6.addConstraint(Sketcher.Constraint("Coincident", 25, 2, 26, 1))
sketch6.addConstraint(Sketcher.Constraint("Coincident", 26, 2, 27, 1))
sketch6.addConstraint(Sketcher.Constraint("Coincident", 27, 2, 28, 1))
sketch6.addConstraint(Sketcher.Constraint("Tangent", 28, 2, 29, 1))
sketch6.addConstraint(Sketcher.Constraint("Coincident", 29, 2, 30, 1))
sketch6.addConstraint(Sketcher.Constraint("Coincident", 30, 2, 31, 1))
sketch6.addConstraint(Sketcher.Constraint("Tangent", 31, 2, 32, 1))
sketch6.addConstraint(Sketcher.Constraint("Coincident", 32, 2, 33, 1))
sketch6.addConstraint(Sketcher.Constraint("Coincident", 33, 2, 34, 1))
sketch6.addConstraint(Sketcher.Constraint("Coincident", 34, 2, 35, 1))
sketch6.addConstraint(Sketcher.Constraint("Coincident", 35, 2, 36, 1))
sketch6.addConstraint(Sketcher.Constraint("Coincident", 36, 2, 37, 1))
sketch6.addConstraint(Sketcher.Constraint("Coincident", 37, 2, 38, 1))
sketch6.addConstraint(Sketcher.Constraint("Coincident", 38, 2, 39, 1))
sketch6.addConstraint(Sketcher.Constraint("Coincident", 39, 2, 40, 1))
sketch6.addConstraint(Sketcher.Constraint("Coincident", 40, 2, 41, 1))
sketch6.addConstraint(Sketcher.Constraint("Coincident", 41, 2, 0, 1))
sketch6.addConstraint(Sketcher.Constraint("Vertical", 0))
sketch6.addConstraint(Sketcher.Constraint("Horizontal", 2))
sketch6.addConstraint(Sketcher.Constraint("Vertical", 4))
sketch6.addConstraint(Sketcher.Constraint("Horizontal", 5))
sketch6.addConstraint(Sketcher.Constraint("Vertical", 6))
sketch6.addConstraint(Sketcher.Constraint("Horizontal", 7))
sketch6.addConstraint(Sketcher.Constraint("Vertical", 8))
sketch6.addConstraint(Sketcher.Constraint("Horizontal", 10))
sketch6.addConstraint(Sketcher.Constraint("Vertical", 11))
sketch6.addConstraint(Sketcher.Constraint("Horizontal", 12))
sketch6.addConstraint(Sketcher.Constraint("Vertical", 13))
sketch6.addConstraint(Sketcher.Constraint("Vertical", 15))
sketch6.addConstraint(Sketcher.Constraint("Vertical", 17))
sketch6.addConstraint(Sketcher.Constraint("Horizontal", 18))
sketch6.addConstraint(Sketcher.Constraint("Vertical", 19))
sketch6.addConstraint(Sketcher.Constraint("Vertical", 21))
sketch6.addConstraint(Sketcher.Constraint("Horizontal", 22))
sketch6.addConstraint(Sketcher.Constraint("Vertical", 23))
sketch6.addConstraint(Sketcher.Constraint("Vertical", 25))
sketch6.addConstraint(Sketcher.Constraint("Horizontal", 26))
sketch6.addConstraint(Sketcher.Constraint("Vertical", 27))
sketch6.addConstraint(Sketcher.Constraint("Vertical", 30))
sketch6.addConstraint(Sketcher.Constraint("Vertical", 33))
sketch6.addConstraint(Sketcher.Constraint("Horizontal", 34))
sketch6.addConstraint(Sketcher.Constraint("Vertical", 35))
sketch6.addConstraint(Sketcher.Constraint("Horizontal", 36))
sketch6.addConstraint(Sketcher.Constraint("Vertical", 38))
sketch6.addConstraint(Sketcher.Constraint("Horizontal", 39))
sketch6.addConstraint(Sketcher.Constraint("Vertical", 40))
sketch6.addConstraint(Sketcher.Constraint("Horizontal", 41))
sketch6.addConstraint(Sketcher.Constraint("Equal", 14, 16))
sketch6.addConstraint(Sketcher.Constraint("Equal", 16, 20))
sketch6.addConstraint(Sketcher.Constraint("Equal", 20, 24))
sketch6.addConstraint(Sketcher.Constraint("Equal", 24, 28))
sketch6.addConstraint(Sketcher.Constraint("Equal", 28, 29))
sketch6.addConstraint(Sketcher.Constraint("Equal", 29, 31))
sketch6.addConstraint(Sketcher.Constraint("Equal", 31, 32))
sketch6.addConstraint(Sketcher.Constraint("Equal", 32, 42))
sketch6.addConstraint(Sketcher.Constraint("Equal", 42, 43))
sketch6.addConstraint(Sketcher.Constraint("Equal", 43, 44))
sketch6.addConstraint(Sketcher.Constraint("Equal", 44, 45))
sketch6.addConstraint(Sketcher.Constraint("Horizontal", 20, 3, 24, 3))
sketch6.addConstraint(Sketcher.Constraint("Horizontal", 16, 3, 28, 3))
sketch6.addConstraint(Sketcher.Constraint("Horizontal", 14, 3, 31, 3))
sketch6.addConstraint(Sketcher.Constraint("Horizontal", 32, 3, 43, 3))
sketch6.addConstraint(Sketcher.Constraint("Horizontal", 42, 3, 44, 3))
sketch6.addConstraint(Sketcher.Constraint("Horizontal", 43, 3, 45, 3))
sketch6.addConstraint(Sketcher.Constraint("Horizontal", 0, 2, 3, 2))
sketch6.addConstraint(Sketcher.Constraint("Horizontal", 8, 2, 11, 2))
sketch6.addConstraint(Sketcher.Constraint("Horizontal", 5, 2, 17, 2))
sketch6.addConstraint(Sketcher.Constraint("Horizontal", 18, 2, 21, 2))
sketch6.addConstraint(Sketcher.Constraint("Horizontal", 22, 2, 25, 2))
sketch6.addConstraint(Sketcher.Constraint("Horizontal", 29, 3, 28, 2))
sketch6.addConstraint(Sketcher.Constraint("Horizontal", 45, 3, 31, 2))
sketch6.addConstraint(Sketcher.Constraint("Horizontal", 12, 2, 33, 2))
sketch6.addConstraint(Sketcher.Constraint("Horizontal", 10, 2, 35, 2))
sketch6.addConstraint(Sketcher.Constraint("Horizontal", 34, 2, 37, 2))
sketch6.addConstraint(Sketcher.Constraint("Horizontal", 7, 2, 38, 2))
sketch6.addConstraint(Sketcher.Constraint("Horizontal", 26, 2, 40, 2))
sketch6.addConstraint(Sketcher.Constraint("Vertical", 14, 3, 16, 3))
sketch6.addConstraint(Sketcher.Constraint("Vertical", 29, 3, 31, 3))
sketch6.addConstraint(Sketcher.Constraint("Vertical", 42, 3, 43, 3))
sketch6.addConstraint(Sketcher.Constraint("Vertical", 44, 3, 45, 3))
sketch6.addConstraint(Sketcher.Constraint("Vertical", 4, 2, 7, 2))
sketch6.addConstraint(Sketcher.Constraint("Vertical", 16, 3, 12, 2))
sketch6.addConstraint(Sketcher.Constraint("Vertical", 13, 2, 14, 2))
sketch6.addConstraint(Sketcher.Constraint("Vertical", 15, 2, 16, 2))
sketch6.addConstraint(Sketcher.Constraint("Vertical", 32, 3, 26, 2))
sketch6.addConstraint(Sketcher.Constraint("Vertical", 27, 2, 29, 2))
sketch6.addConstraint(Sketcher.Constraint("Vertical", 30, 2, 32, 2))
sketch6.addConstraint(Sketcher.Constraint("Vertical", 0, 2, 37, 2))
sketch6.addConstraint(Sketcher.Constraint("Equal", 18, 26))
sketch6.addConstraint(Sketcher.Constraint("Equal", 12, 34))
sketch6.addConstraint(Sketcher.Constraint("Equal", 10, 36))
sketch6.addConstraint(Sketcher.Constraint("Equal", 7, 39))
sketch6.addConstraint(Sketcher.Constraint("Equal", 34, 0))
sketch6.addConstraint(Sketcher.Constraint("Equal", 4, 8))
sketch6.addConstraint(Sketcher.Constraint("Equal", 8, 11))
sketch6.addConstraint(Sketcher.Constraint("Equal", 1, 3))
sketch6.addConstraint(Sketcher.Constraint("Equal", 9, 37))
sketch6.addConstraint(Sketcher.Constraint("Diameter", 42, Q("0.375 in")))
sketch6.addConstraint(Sketcher.Constraint("DistanceX", 18, 2, 18, 1, Q("4.4 in")))
sketch6.addConstraint(Sketcher.Constraint("DistanceX", 22, 2, 22, 1, Q("4.2 in")))
sketch6.addConstraint(Sketcher.Constraint("DistanceY", 0, 2, 28, 3, Q("1 in")))
sketch6.addConstraint(Sketcher.Constraint("DistanceY", 1, 2, 42, 3, Q("2 in")))
sketch6.addConstraint(Sketcher.Constraint("DistanceY", 44, 3, 6, 2, Q("11 in")))
sketch6.addConstraint(Sketcher.Constraint("DistanceY", 16, 3, 8, 2, Q("12 in")))
sketch6.addConstraint(Sketcher.Constraint("DistanceY", 6, 1, 6, 2, Q("12.75 in")))
sketch6.addConstraint(Sketcher.Constraint("DistanceY", -1, 1, 14, 3, Q("1.9 in")))
sketch6.addConstraint(Sketcher.Constraint("DistanceY", 16, 3, -1, 1, Q("7.6 in")))
sketch6.addConstraint(Sketcher.Constraint("DistanceX", 42, 3, 24, 3, Q("1.9 in")))
sketch6.addConstraint(Sketcher.Constraint("DistanceX", 20, 3, 44, 3, Q("1.9 in")))
sketch6.addConstraint(Sketcher.Constraint("DistanceX", 5, 2, 5, 1, Q("3.077 in")))
sketch6.addConstraint(Sketcher.Constraint("DistanceY", 19, 1, 19, 2, Q("0.0625 in")))
sketch6.addConstraint(Sketcher.Constraint("DistanceX", 16, 3, 5, 2, Q("0.25 in")))
sketch6.addConstraint(Sketcher.Constraint("Distance", 9, Q("3.464622 mm")))
sketch6.addConstraint(Sketcher.Constraint("DistanceX", 2, 1, 2, 2, Q("515.842302 mm")))
sketch6.addConstraint(Sketcher.Constraint("DistanceX", -1, 1, 2, 2, Q("261.651389 mm")))
sketch6.setExpression("Constraints[122]", "Params.sketch6_diameter")
sketch6.setExpression("Constraints[123]", "Params.sketch6_width")
sketch6.setExpression("Constraints[124]", "Params.sketch6_width2")
sketch6.setExpression("Constraints[129]", "Params.sketch6_height")
sketch6.setExpression("Constraints[134]", "Params.sketch6_width3")
pocket1 = doc.addObject("PartDesign::Pocket", "Pocket")
body.addObject(pocket1)
pocket1.Profile = sketch6
pocket1.setExpression("Length", "Params.pocket1_length")

doc.recompute()
